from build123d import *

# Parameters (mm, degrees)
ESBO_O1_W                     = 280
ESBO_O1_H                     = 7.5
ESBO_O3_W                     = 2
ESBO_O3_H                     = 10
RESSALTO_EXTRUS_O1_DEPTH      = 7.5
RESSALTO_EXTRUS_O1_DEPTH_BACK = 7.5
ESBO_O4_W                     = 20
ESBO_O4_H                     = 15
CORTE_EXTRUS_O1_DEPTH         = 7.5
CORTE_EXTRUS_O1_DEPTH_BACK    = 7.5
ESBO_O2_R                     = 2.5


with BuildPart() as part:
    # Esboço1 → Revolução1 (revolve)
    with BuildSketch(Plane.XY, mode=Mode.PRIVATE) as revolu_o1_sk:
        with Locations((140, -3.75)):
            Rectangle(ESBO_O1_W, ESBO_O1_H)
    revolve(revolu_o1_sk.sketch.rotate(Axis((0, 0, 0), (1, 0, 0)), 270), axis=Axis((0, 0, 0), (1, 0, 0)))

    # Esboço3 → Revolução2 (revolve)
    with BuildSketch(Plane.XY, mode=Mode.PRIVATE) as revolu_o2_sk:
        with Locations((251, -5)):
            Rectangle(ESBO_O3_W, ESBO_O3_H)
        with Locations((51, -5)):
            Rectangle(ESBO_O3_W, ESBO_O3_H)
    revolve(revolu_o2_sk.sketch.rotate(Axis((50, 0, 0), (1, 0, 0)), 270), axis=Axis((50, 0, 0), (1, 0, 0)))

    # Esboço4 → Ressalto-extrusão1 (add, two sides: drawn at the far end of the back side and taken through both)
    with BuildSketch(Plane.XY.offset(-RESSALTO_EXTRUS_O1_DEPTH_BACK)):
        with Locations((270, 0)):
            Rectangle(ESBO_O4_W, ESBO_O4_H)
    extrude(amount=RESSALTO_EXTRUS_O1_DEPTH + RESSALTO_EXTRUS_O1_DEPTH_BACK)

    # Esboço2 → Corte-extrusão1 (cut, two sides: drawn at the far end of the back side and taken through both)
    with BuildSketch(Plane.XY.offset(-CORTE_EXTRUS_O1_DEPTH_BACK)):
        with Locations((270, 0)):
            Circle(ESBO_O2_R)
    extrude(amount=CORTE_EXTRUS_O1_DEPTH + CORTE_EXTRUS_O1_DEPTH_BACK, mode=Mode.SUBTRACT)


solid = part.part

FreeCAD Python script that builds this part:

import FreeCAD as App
import Part
import Sketcher

V = App.Vector
Q = App.Units.Quantity


def add_polygon(sketch, points):
    """Adds a closed chain of lines whose ends are joined by coincident constraints."""
    first, n = sketch.GeometryCount, len(points)
    for a, b in zip(points, points[1:] + points[:1]):
        sketch.addGeometry(Part.LineSegment(App.Vector(*a, 0), App.Vector(*b, 0)), False)
    for i in range(n):
        sketch.addConstraint(Sketcher.Constraint("Coincident", first + i, 2, first + (i + 1) % n, 1))

doc = App.newDocument("Part")
body = doc.addObject("PartDesign::Body", "Body")

sketch1 = body.newObject("Sketcher::SketchObject", "Sketch")
sketch1.AttachmentSupport = (doc.getObject("XY_Plane"), [""])
sketch1.MapMode = "FlatFace"
add_polygon(sketch1, [(0, 0), (0, -8), (280, -8), (280, 0)])
sketch1.addConstraint([
    Sketcher.Constraint("Vertical", 0),
    Sketcher.Constraint("Horizontal", 1),
    Sketcher.Constraint("Vertical", 2),
    Sketcher.Constraint("Horizontal", 3),
    Sketcher.Constraint("Coincident", 3, 2, -1, 1),
    Sketcher.Constraint("DistanceX", 1, 1, 1, 2, Q("280 mm")),
    Sketcher.Constraint("DistanceY", 0, 2, 0, 1, Q("7.5 mm")),
])
revolution = body.newObject("PartDesign::Revolution", "Revolution")
revolution.Profile = sketch1
revolution.ReferenceAxis = (sketch1, ["H_Axis"])
revolution.Angle = 360

sketch2 = body.newObject("Sketcher::SketchObject", "Sketch001")
sketch2.AttachmentSupport = (doc.getObject("XY_Plane"), [""])
sketch2.MapMode = "FlatFace"
add_polygon(sketch2, [(250, 0), (250, -10), (252, -10), (252, 0)])
add_polygon(sketch2, [(50, 0), (50, -10), (52, -10), (52, 0)])
sketch2.addConstraint([
    Sketcher.Constraint("Vertical", 0),
    Sketcher.Constraint("Horizontal", 1),
    Sketcher.Constraint("Vertical", 2),
    Sketcher.Constraint("Horizontal", 3),
    Sketcher.Constraint("Vertical", 4),
    Sketcher.Constraint("Horizontal", 5),
    Sketcher.Constraint("Vertical", 6),
    Sketcher.Constraint("Horizontal", 7),
    Sketcher.Constraint("PointOnObject", 2, 2, -1),
    Sketcher.Constraint("PointOnObject", 6, 2, -1),
    Sketcher.Constraint("Horizontal", 1, 2, 4, 2),
    Sketcher.Constraint("Equal", 3, 5),
    Sketcher.Constraint("DistanceX", 1, 1, 1, 2, Q("2 mm")),
    Sketcher.Constraint("DistanceY", 0, 2, 0, 1, Q("10 mm")),
    Sketcher.Constraint("DistanceX", -1, 1, 0, 2, Q("250 mm")),
    Sketcher.Constraint("DistanceX", -1, 1, 4, 2, Q("50 mm")),
])
revolution2 = body.newObject("PartDesign::Revolution", "Revolution001")
revolution2.Profile = sketch2
revolution2.ReferenceAxis = (sketch2, ["H_Axis"])
revolution2.Angle = 360

sketch3 = body.newObject("Sketcher::SketchObject", "Sketch002")
sketch3.AttachmentSupport = (doc.getObject("XY_Plane"), [""])
sketch3.MapMode = "FlatFace"
add_polygon(sketch3, [(260, 8), (260, -8), (280, -8), (280, 8)])
sketch3.addConstraint([
    Sketcher.Constraint("Vertical", 0),
    Sketcher.Constraint("Horizontal", 1),
    Sketcher.Constraint("Vertical", 2),
    Sketcher.Constraint("Horizontal", 3),
    Sketcher.Constraint("DistanceX", 1, 1, 1, 2, Q("20 mm")),
    Sketcher.Constraint("DistanceY", 0, 2, 0, 1, Q("15 mm")),
    Sketcher.Constraint("DistanceX", -1, 1, 0, 2, Q("260 mm")),
    Sketcher.Constraint("DistanceY", 0, 2, -1, 1, Q("7.5 mm")),
])
pad1 = body.newObject("PartDesign::Pad", "Pad")
pad1.Profile = sketch3
pad1.Type = "TwoLengths"
pad1.Length = 7.5
pad1.Length2 = 7.5

sketch4 = body.newObject("Sketcher::SketchObject", "Sketch003")
sketch4.AttachmentSupport = (doc.getObject("XY_Plane"), [""])
sketch4.MapMode = "FlatFace"
sketch4.addGeometry(Part.Circle(V(270, 0, 0), V(0, 0, 1), 2.5), False)
sketch4.addConstraint([
    Sketcher.Constraint("PointOnObject", 0, 3, -1),
    Sketcher.Constraint("Diameter", 0, Q("5 mm")),
    Sketcher.Constraint("DistanceX", -1, 1, 0, 3, Q("270 mm")),
])
pocket1 = body.newObject("PartDesign::Pocket", "Pocket")
pocket1.Profile = sketch4
pocket1.Type = "ThroughAll"
pocket1.Midplane = True

doc.recompute()
